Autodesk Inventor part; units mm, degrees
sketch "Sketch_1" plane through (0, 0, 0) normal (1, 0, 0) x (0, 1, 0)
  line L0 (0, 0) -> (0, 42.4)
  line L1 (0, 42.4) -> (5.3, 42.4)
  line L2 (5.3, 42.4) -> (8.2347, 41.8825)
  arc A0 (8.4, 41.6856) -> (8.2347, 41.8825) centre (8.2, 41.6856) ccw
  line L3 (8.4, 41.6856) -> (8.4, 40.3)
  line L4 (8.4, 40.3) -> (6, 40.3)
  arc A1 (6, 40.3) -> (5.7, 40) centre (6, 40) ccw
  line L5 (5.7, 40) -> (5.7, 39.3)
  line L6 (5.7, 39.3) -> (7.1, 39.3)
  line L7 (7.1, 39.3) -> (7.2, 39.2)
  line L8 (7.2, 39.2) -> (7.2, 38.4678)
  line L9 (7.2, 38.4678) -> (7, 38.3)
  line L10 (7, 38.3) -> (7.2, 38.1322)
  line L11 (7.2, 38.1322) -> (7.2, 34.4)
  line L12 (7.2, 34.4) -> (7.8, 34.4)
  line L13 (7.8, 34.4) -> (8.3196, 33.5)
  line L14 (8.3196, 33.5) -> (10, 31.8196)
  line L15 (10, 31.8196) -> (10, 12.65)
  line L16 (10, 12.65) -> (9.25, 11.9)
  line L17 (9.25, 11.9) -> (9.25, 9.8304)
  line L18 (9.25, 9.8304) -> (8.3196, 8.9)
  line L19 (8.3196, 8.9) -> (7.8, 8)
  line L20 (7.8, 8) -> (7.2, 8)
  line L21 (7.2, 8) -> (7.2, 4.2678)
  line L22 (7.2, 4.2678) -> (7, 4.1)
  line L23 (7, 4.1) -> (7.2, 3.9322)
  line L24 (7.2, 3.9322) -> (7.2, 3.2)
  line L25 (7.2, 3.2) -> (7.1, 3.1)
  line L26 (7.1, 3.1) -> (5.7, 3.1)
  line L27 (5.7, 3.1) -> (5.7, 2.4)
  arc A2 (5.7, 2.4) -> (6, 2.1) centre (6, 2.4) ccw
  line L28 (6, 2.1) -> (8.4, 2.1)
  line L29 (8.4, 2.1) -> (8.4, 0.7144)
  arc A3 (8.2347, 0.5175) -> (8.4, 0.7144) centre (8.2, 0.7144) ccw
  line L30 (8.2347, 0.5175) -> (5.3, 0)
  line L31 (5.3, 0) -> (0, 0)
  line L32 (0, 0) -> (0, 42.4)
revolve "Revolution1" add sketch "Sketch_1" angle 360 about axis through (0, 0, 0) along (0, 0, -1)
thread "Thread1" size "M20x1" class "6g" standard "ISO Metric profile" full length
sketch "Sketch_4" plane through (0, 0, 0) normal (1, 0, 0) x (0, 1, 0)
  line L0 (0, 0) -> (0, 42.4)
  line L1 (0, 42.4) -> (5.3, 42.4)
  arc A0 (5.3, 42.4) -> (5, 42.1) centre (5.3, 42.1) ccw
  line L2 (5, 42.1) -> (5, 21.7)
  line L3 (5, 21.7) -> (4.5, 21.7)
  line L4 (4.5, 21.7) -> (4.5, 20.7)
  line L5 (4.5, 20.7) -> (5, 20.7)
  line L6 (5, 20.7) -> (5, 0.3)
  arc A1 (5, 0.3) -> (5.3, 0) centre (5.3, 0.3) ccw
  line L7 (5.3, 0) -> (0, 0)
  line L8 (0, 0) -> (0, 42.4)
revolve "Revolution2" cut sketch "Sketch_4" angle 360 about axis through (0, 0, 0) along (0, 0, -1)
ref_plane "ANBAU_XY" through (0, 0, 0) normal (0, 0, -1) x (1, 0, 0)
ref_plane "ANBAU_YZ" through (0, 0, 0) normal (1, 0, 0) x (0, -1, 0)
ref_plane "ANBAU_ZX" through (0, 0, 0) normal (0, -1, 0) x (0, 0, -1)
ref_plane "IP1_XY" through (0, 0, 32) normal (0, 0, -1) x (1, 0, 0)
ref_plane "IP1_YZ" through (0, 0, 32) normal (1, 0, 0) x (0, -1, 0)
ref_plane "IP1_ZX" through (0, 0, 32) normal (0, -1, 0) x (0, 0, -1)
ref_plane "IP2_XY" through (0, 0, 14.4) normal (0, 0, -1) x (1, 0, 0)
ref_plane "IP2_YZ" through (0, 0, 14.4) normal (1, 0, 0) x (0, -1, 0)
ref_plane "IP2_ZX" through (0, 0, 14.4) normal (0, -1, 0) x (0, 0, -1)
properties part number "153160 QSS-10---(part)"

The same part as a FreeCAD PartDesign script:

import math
import FreeCAD as App
import Part
import Sketcher
Q = App.Units.Quantity

doc = App.newDocument("Part")
body = doc.addObject("PartDesign::Body", "Body")

sketch1 = body.newObject("Sketcher::SketchObject", "Sketch")
sketch1.AttachmentSupport = (doc.getObject("YZ_Plane"), [""])
sketch1.MapMode = "FlatFace"
sketch1.addGeometry(Part.LineSegment(App.Vector(0, 42.4, 0), App.Vector(0, 0, 0)), False)
sketch1.addGeometry(Part.LineSegment(App.Vector(0, 0, 0), App.Vector(5.3, 0, 0)), False)
sketch1.addGeometry(Part.LineSegment(App.Vector(5.3, 0, 0), App.Vector(8.23, 0.52, 0)), False)
sketch1.addGeometry(Part.ArcOfCircle(Part.Circle(App.Vector(8.2, 0.71, 0), App.Vector(0, 0, 1), 0.2), math.radians(-80), math.radians(0)), False)
sketch1.addGeometry(Part.LineSegment(App.Vector(8.4, 0.71, 0), App.Vector(8.4, 2.1, 0)), False)
sketch1.addGeometry(Part.LineSegment(App.Vector(8.4, 2.1, 0), App.Vector(6, 2.1, 0)), False)
sketch1.addGeometry(Part.ArcOfCircle(Part.Circle(App.Vector(6, 2.4, 0), App.Vector(0, 0, 1), 0.3), math.radians(180), math.radians(270)), False)
sketch1.addGeometry(Part.LineSegment(App.Vector(5.7, 2.4, 0), App.Vector(5.7, 3.1, 0)), False)
sketch1.addGeometry(Part.LineSegment(App.Vector(5.7, 3.1, 0), App.Vector(7.1, 3.1, 0)), False)
sketch1.addGeometry(Part.LineSegment(App.Vector(7.1, 3.1, 0), App.Vector(7.2, 3.2, 0)), False)
sketch1.addGeometry(Part.LineSegment(App.Vector(7.2, 3.2, 0), App.Vector(7.2, 3.93, 0)), False)
sketch1.addGeometry(Part.LineSegment(App.Vector(7.2, 3.93, 0), App.Vector(7, 4.1, 0)), False)
sketch1.addGeometry(Part.LineSegment(App.Vector(7, 4.1, 0), App.Vector(7.2, 4.27, 0)), False)
sketch1.addGeometry(Part.LineSegment(App.Vector(7.2, 4.27, 0), App.Vector(7.2, 8, 0)), False)
sketch1.addGeometry(Part.LineSegment(App.Vector(7.2, 8, 0), App.Vector(7.8, 8, 0)), False)
sketch1.addGeometry(Part.LineSegment(App.Vector(7.8, 8, 0), App.Vector(8.32, 8.9, 0)), False)
sketch1.addGeometry(Part.LineSegment(App.Vector(8.32, 8.9, 0), App.Vector(9.25, 9.83, 0)), False)
sketch1.addGeometry(Part.LineSegment(App.Vector(9.25, 9.83, 0), App.Vector(9.25, 11.9, 0)), False)
sketch1.addGeometry(Part.LineSegment(App.Vector(9.25, 11.9, 0), App.Vector(10, 12.65, 0)), False)
sketch1.addGeometry(Part.LineSegment(App.Vector(10, 12.65, 0), App.Vector(10, 31.82, 0)), False)
sketch1.addGeometry(Part.LineSegment(App.Vector(10, 31.82, 0), App.Vector(8.32, 33.5, 0)), False)
sketch1.addGeometry(Part.LineSegment(App.Vector(8.32, 33.5, 0), App.Vector(7.8, 34.4, 0)), False)
sketch1.addGeometry(Part.LineSegment(App.Vector(7.8, 34.4, 0), App.Vector(7.2, 34.4, 0)), False)
sketch1.addGeometry(Part.LineSegment(App.Vector(7.2, 34.4, 0), App.Vector(7.2, 38.13, 0)), False)
sketch1.addGeometry(Part.LineSegment(App.Vector(7.2, 38.13, 0), App.Vector(7, 38.3, 0)), False)
sketch1.addGeometry(Part.LineSegment(App.Vector(7, 38.3, 0), App.Vector(7.2, 38.47, 0)), False)
sketch1.addGeometry(Part.LineSegment(App.Vector(7.2, 38.47, 0), App.Vector(7.2, 39.2, 0)), False)
sketch1.addGeometry(Part.LineSegment(App.Vector(7.2, 39.2, 0), App.Vector(7.1, 39.3, 0)), False)
sketch1.addGeometry(Part.LineSegment(App.Vector(7.1, 39.3, 0), App.Vector(5.7, 39.3, 0)), False)
sketch1.addGeometry(Part.LineSegment(App.Vector(5.7, 39.3, 0), App.Vector(5.7, 40, 0)), False)
sketch1.addGeometry(Part.ArcOfCircle(Part.Circle(App.Vector(6, 40, 0), App.Vector(0, 0, 1), 0.3), math.radians(90), math.radians(180)), False)
sketch1.addGeometry(Part.LineSegment(App.Vector(6, 40.3, 0), App.Vector(8.4, 40.3, 0)), False)
sketch1.addGeometry(Part.LineSegment(App.Vector(8.4, 40.3, 0), App.Vector(8.4, 41.69, 0)), False)
sketch1.addGeometry(Part.ArcOfCircle(Part.Circle(App.Vector(8.2, 41.69, 0), App.Vector(0, 0, 1), 0.2), math.radians(0), math.radians(80)), False)
sketch1.addGeometry(Part.LineSegment(App.Vector(8.23, 41.88, 0), App.Vector(5.3, 42.4, 0)), False)
sketch1.addGeometry(Part.LineSegment(App.Vector(5.3, 42.4, 0), App.Vector(0, 42.4, 0)), False)
sketch1.addConstraint(Sketcher.Constraint("Coincident", 0, 2, 1, 1))
sketch1.addConstraint(Sketcher.Constraint("Coincident", 1, 2, 2, 1))
sketch1.addConstraint(Sketcher.Constraint("Tangent", 2, 2, 3, 1))
sketch1.addConstraint(Sketcher.Constraint("Tangent", 3, 2, 4, 1))
sketch1.addConstraint(Sketcher.Constraint("Coincident", 4, 2, 5, 1))
sketch1.addConstraint(Sketcher.Constraint("Tangent", 5, 2, 6, 2))
sketch1.addConstraint(Sketcher.Constraint("Tangent", 6, 1, 7, 1))
sketch1.addConstraint(Sketcher.Constraint("Coincident", 7, 2, 8, 1))
sketch1.addConstraint(Sketcher.Constraint("Coincident", 8, 2, 9, 1))
sketch1.addConstraint(Sketcher.Constraint("Coincident", 9, 2, 10, 1))
sketch1.addConstraint(Sketcher.Constraint("Coincident", 10, 2, 11, 1))
sketch1.addConstraint(Sketcher.Constraint("Coincident", 11, 2, 12, 1))
sketch1.addConstraint(Sketcher.Constraint("Coincident", 12, 2, 13, 1))
sketch1.addConstraint(Sketcher.Constraint("Coincident", 13, 2, 14, 1))
sketch1.addConstraint(Sketcher.Constraint("Coincident", 14, 2, 15, 1))
sketch1.addConstraint(Sketcher.Constraint("Coincident", 15, 2, 16, 1))
sketch1.addConstraint(Sketcher.Constraint("Coincident", 16, 2, 17, 1))
sketch1.addConstraint(Sketcher.Constraint("Coincident", 17, 2, 18, 1))
sketch1.addConstraint(Sketcher.Constraint("Coincident", 18, 2, 19, 1))
sketch1.addConstraint(Sketcher.Constraint("Coincident", 19, 2, 20, 1))
sketch1.addConstraint(Sketcher.Constraint("Coincident", 20, 2, 21, 1))
sketch1.addConstraint(Sketcher.Constraint("Coincident", 21, 2, 22, 1))
sketch1.addConstraint(Sketcher.Constraint("Coincident", 22, 2, 23, 1))
sketch1.addConstraint(Sketcher.Constraint("Coincident", 23, 2, 24, 1))
sketch1.addConstraint(Sketcher.Constraint("Coincident", 24, 2, 25, 1))
sketch1.addConstraint(Sketcher.Constraint("Coincident", 25, 2, 26, 1))
sketch1.addConstraint(Sketcher.Constraint("Coincident", 26, 2, 27, 1))
sketch1.addConstraint(Sketcher.Constraint("Coincident", 27, 2, 28, 1))
sketch1.addConstraint(Sketcher.Constraint("Coincident", 28, 2, 29, 1))
sketch1.addConstraint(Sketcher.Constraint("Tangent", 29, 2, 30, 2))
sketch1.addConstraint(Sketcher.Constraint("Tangent", 30, 1, 31, 1))
sketch1.addConstraint(Sketcher.Constraint("Coincident", 31, 2, 32, 1))
sketch1.addConstraint(Sketcher.Constraint("Tangent", 32, 2, 33, 1))
sketch1.addConstraint(Sketcher.Constraint("Tangent", 33, 2, 34, 1))
sketch1.addConstraint(Sketcher.Constraint("Coincident", 34, 2, 35, 1))
sketch1.addConstraint(Sketcher.Constraint("Coincident", 35, 2, 0, 1))
sketch1.addConstraint(Sketcher.Constraint("Vertical", 0))
sketch1.addConstraint(Sketcher.Constraint("Horizontal", 1))
sketch1.addConstraint(Sketcher.Constraint("Vertical", 4))
sketch1.addConstraint(Sketcher.Constraint("Horizontal", 5))
sketch1.addConstraint(Sketcher.Constraint("Vertical", 7))
sketch1.addConstraint(Sketcher.Constraint("Horizontal", 8))
sketch1.addConstraint(Sketcher.Constraint("Vertical", 10))
sketch1.addConstraint(Sketcher.Constraint("Vertical", 13))
sketch1.addConstraint(Sketcher.Constraint("Horizontal", 14))
sketch1.addConstraint(Sketcher.Constraint("Vertical", 17))
sketch1.addConstraint(Sketcher.Constraint("Vertical", 19))
sketch1.addConstraint(Sketcher.Constraint("Horizontal", 22))
sketch1.addConstraint(Sketcher.Constraint("Vertical", 23))
sketch1.addConstraint(Sketcher.Constraint("Vertical", 26))
sketch1.addConstraint(Sketcher.Constraint("Horizontal", 28))
sketch1.addConstraint(Sketcher.Constraint("Vertical", 29))
sketch1.addConstraint(Sketcher.Constraint("Horizontal", 31))
sketch1.addConstraint(Sketcher.Constraint("Vertical", 32))
sketch1.addConstraint(Sketcher.Constraint("Horizontal", 35))
sketch1.addConstraint(Sketcher.Constraint("Coincident", 0, 2, -1, 1))
sketch1.addConstraint(Sketcher.Constraint("Equal", 6, 30))
sketch1.addConstraint(Sketcher.Constraint("Equal", 3, 33))
sketch1.addConstraint(Sketcher.Constraint("Parallel", 9, 16))
sketch1.addConstraint(Sketcher.Constraint("Parallel", 16, 18))
sketch1.addConstraint(Sketcher.Constraint("Perpendicular", 18, 20))
sketch1.addConstraint(Sketcher.Constraint("Parallel", 11, 24))
sketch1.addConstraint(Sketcher.Constraint("Parallel", 12, 25))
sketch1.addConstraint(Sketcher.Constraint("Parallel", 20, 27))
sketch1.addConstraint(Sketcher.Constraint("Vertical", 6, 3, 30, 3))
sketch1.addConstraint(Sketcher.Constraint("Vertical", 3, 3, 33, 3))
sketch1.addConstraint(Sketcher.Constraint("Vertical", 10, 2, 12, 2))
sketch1.addConstraint(Sketcher.Constraint("Vertical", 15, 2, 20, 2))
sketch1.addConstraint(Sketcher.Constraint("Vertical", 14, 2, 21, 2))
sketch1.addConstraint(Sketcher.Constraint("Vertical", 13, 2, 22, 2))
sketch1.addConstraint(Sketcher.Constraint("Vertical", 11, 2, 24, 2))
sketch1.addConstraint(Sketcher.Constraint("Vertical", 23, 2, 25, 2))
sketch1.addConstraint(Sketcher.Constraint("Vertical", 8, 2, 27, 2))
sketch1.addConstraint(Sketcher.Constraint("Vertical", 2, 2, 33, 2))
sketch1.addConstraint(Sketcher.Constraint("Vertical", 1, 2, 34, 2))
sketch1.addConstraint(Sketcher.Constraint("Equal", 13, 23))
sketch1.addConstraint(Sketcher.Constraint("Equal", 10, 26))
sketch1.addConstraint(Sketcher.Constraint("Equal", 7, 29))
sketch1.addConstraint(Sketcher.Constraint("Equal", 4, 32))
sketch1.addConstraint(Sketcher.Constraint("Equal", 11, 12))
sketch1.addConstraint(Sketcher.Constraint("Equal", 15, 21))
sketch1.addConstraint(Sketcher.Constraint("Equal", 9, 27))
sketch1.addConstraint(Sketcher.Constraint("Radius", 3, 0.2))
sketch1.addConstraint(Sketcher.Constraint("Radius", 6, 0.3))
sketch1.addConstraint(Sketcher.Constraint("Angle", 2, Q("10.0006 deg")))
sketch1.addConstraint(Sketcher.Constraint("Angle", 15, Q("60.0007 deg")))
sketch1.addConstraint(Sketcher.Constraint("DistanceX", 1, 1, 1, 2, 5.3))
sketch1.addConstraint(Sketcher.Constraint("DistanceX", 5, 2, 5, 1, 2.4))
sketch1.addConstraint(Sketcher.Constraint("DistanceX", 8, 1, 8, 2, 1.4))
sketch1.addConstraint(Sketcher.Constraint("DistanceX", 14, 1, 14, 2, 0.6))
sketch1.addConstraint(Sketcher.Constraint("DistanceY", 0, 2, 0, 1, 42.4))
sketch1.addConstraint(Sketcher.Constraint("DistanceY", 7, 1, 7, 2, 0.7))
sketch1.addConstraint(Sketcher.Constraint("DistanceX", -1, 1, 6, 3, 6.0))
sketch1.addConstraint(Sketcher.Constraint("DistanceY", -1, 1, 30, 3, 40.0))
sketch1.addConstraint(Sketcher.Constraint("DistanceX", -1, 1, 11, 2, 7.0))
sketch1.addConstraint(Sketcher.Constraint("DistanceY", -1, 1, 13, 2, 8.0))
sketch1.addConstraint(Sketcher.Constraint("DistanceX", -1, 1, 18, 2, 10.0))
sketch1.addConstraint(Sketcher.Constraint("DistanceY", 8, 2, 11, 2, 1.0))
sketch1.addConstraint(Sketcher.Constraint("DistanceY", 15, 2, 17, 2, 3.0))
sketch1.addConstraint(Sketcher.Constraint("DistanceX", 22, 2, 33, 3, 1.0))
sketch1.addConstraint(Sketcher.Constraint("DistanceY", -1, 1, 15, 2, 8.9))
sketch1.addConstraint(Sketcher.Constraint("DistanceX", -1, 1, 16, 2, 9.25))
sketch1.addConstraint(Sketcher.Constraint("Distance", 11, 0.261))
revolution = body.newObject("PartDesign::Revolution", "Revolution")
revolution.Profile = sketch1
revolution.ReferenceAxis = (sketch1, ["V_Axis"])
revolution.Angle = 360

sketch2 = body.newObject("Sketcher::SketchObject", "Sketch001")
sketch2.AttachmentSupport = (doc.getObject("YZ_Plane"), [""])
sketch2.MapMode = "FlatFace"
sketch2.addGeometry(Part.LineSegment(App.Vector(0, 42.4, 0), App.Vector(0, 0, 0)), False)
sketch2.addGeometry(Part.LineSegment(App.Vector(0, 0, 0), App.Vector(5.3, 0, 0)), False)
sketch2.addGeometry(Part.ArcOfCircle(Part.Circle(App.Vector(5.3, 0.3, 0), App.Vector(0, 0, 1), 0.3), math.radians(180), math.radians(270)), False)
sketch2.addGeometry(Part.LineSegment(App.Vector(5, 0.3, 0), App.Vector(5, 20.7, 0)), False)
sketch2.addGeometry(Part.LineSegment(App.Vector(5, 20.7, 0), App.Vector(4.5, 20.7, 0)), False)
sketch2.addGeometry(Part.LineSegment(App.Vector(4.5, 20.7, 0), App.Vector(4.5, 21.7, 0)), False)
sketch2.addGeometry(Part.LineSegment(App.Vector(4.5, 21.7, 0), App.Vector(5, 21.7, 0)), False)
sketch2.addGeometry(Part.LineSegment(App.Vector(5, 21.7, 0), App.Vector(5, 42.1, 0)), False)
sketch2.addGeometry(Part.ArcOfCircle(Part.Circle(App.Vector(5.3, 42.1, 0), App.Vector(0, 0, 1), 0.3), math.radians(90), math.radians(180)), False)
sketch2.addGeometry(Part.LineSegment(App.Vector(5.3, 42.4, 0), App.Vector(0, 42.4, 0)), False)
sketch2.addConstraint(Sketcher.Constraint("Coincident", 0, 2, 1, 1))
sketch2.addConstraint(Sketcher.Constraint("Tangent", 1, 2, 2, 2))
sketch2.addConstraint(Sketcher.Constraint("Tangent", 2, 1, 3, 1))
sketch2.addConstraint(Sketcher.Constraint("Coincident", 3, 2, 4, 1))
sketch2.addConstraint(Sketcher.Constraint("Coincident", 4, 2, 5, 1))
sketch2.addConstraint(Sketcher.Constraint("Coincident", 5, 2, 6, 1))
sketch2.addConstraint(Sketcher.Constraint("Coincident", 6, 2, 7, 1))
sketch2.addConstraint(Sketcher.Constraint("Tangent", 7, 2, 8, 2))
sketch2.addConstraint(Sketcher.Constraint("Tangent", 8, 1, 9, 1))
sketch2.addConstraint(Sketcher.Constraint("Coincident", 9, 2, 0, 1))
sketch2.addConstraint(Sketcher.Constraint("Vertical", 0))
sketch2.addConstraint(Sketcher.Constraint("Horizontal", 1))
sketch2.addConstraint(Sketcher.Constraint("Vertical", 3))
sketch2.addConstraint(Sketcher.Constraint("Horizontal", 4))
sketch2.addConstraint(Sketcher.Constraint("Vertical", 5))
sketch2.addConstraint(Sketcher.Constraint("Horizontal", 6))
sketch2.addConstraint(Sketcher.Constraint("Vertical", 7))
sketch2.addConstraint(Sketcher.Constraint("Horizontal", 9))
sketch2.addConstraint(Sketcher.Constraint("Coincident", 0, 2, -1, 1))
sketch2.addConstraint(Sketcher.Constraint("Equal", 2, 8))
sketch2.addConstraint(Sketcher.Constraint("Vertical", 2, 3, 8, 3))
sketch2.addConstraint(Sketcher.Constraint("Equal", 3, 7))
sketch2.addConstraint(Sketcher.Constraint("Radius", 2, 0.3))
sketch2.addConstraint(Sketcher.Constraint("DistanceY", 5, 1, 5, 2, 1.0))
sketch2.addConstraint(Sketcher.Constraint("DistanceX", 1, 1, 1, 2, 5.3))
sketch2.addConstraint(Sketcher.Constraint("DistanceX", 4, 2, 4, 1, 0.5))
sketch2.addConstraint(Sketcher.Constraint("DistanceY", 0, 2, 0, 1, 42.4))
groove = body.newObject("PartDesign::Groove", "Groove")
groove.Profile = sketch2
groove.ReferenceAxis = (sketch2, ["V_Axis"])
groove.Angle = 360

doc.recompute()
